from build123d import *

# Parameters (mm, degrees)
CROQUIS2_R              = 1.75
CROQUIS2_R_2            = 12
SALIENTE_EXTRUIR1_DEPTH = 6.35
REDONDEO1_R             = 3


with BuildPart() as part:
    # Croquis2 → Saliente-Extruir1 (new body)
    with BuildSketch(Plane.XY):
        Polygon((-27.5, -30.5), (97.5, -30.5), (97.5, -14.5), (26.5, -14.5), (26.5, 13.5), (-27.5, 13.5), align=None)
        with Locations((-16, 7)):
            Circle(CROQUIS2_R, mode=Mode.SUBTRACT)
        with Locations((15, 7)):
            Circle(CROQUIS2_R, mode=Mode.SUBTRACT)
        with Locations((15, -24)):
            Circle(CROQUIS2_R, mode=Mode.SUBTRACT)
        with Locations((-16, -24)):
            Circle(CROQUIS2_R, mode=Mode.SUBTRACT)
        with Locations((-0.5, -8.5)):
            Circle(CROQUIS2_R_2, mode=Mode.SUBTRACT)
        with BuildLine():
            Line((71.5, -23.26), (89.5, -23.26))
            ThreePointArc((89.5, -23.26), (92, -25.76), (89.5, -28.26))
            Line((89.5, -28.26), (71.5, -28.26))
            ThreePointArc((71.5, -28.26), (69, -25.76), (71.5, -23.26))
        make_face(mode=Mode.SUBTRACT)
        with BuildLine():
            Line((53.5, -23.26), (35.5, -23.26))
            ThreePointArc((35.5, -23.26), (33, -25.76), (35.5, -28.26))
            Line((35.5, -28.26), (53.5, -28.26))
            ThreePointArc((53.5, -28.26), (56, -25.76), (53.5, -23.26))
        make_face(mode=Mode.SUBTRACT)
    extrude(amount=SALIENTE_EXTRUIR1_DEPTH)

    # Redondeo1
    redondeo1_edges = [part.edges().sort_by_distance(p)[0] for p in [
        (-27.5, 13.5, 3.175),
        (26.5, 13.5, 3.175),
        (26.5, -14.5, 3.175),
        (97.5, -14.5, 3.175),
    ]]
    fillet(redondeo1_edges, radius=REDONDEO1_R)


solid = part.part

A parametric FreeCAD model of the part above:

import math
import FreeCAD as App
import Part
import Sketcher
from FreeCAD import Vector


def edges_at(feature, points):
    """Names of the edges that pass closest to the given points."""
    edges = feature.Shape.Edges
    near = lambda p: min(range(len(edges)), key=lambda i: edges[i].distToShape(Part.Vertex(*p))[0])
    return sorted({f"Edge{near(p) + 1}" for p in points})


def add_polygon(sketch, points):
    """Adds a closed chain of lines whose ends are joined by coincident constraints."""
    first, n = sketch.GeometryCount, len(points)
    for a, b in zip(points, points[1:] + points[:1]):
        sketch.addGeometry(Part.LineSegment(App.Vector(*a, 0), App.Vector(*b, 0)), False)
    for i in range(n):
        sketch.addConstraint(Sketcher.Constraint("Coincident", first + i, 2, first + (i + 1) % n, 1))

doc = App.newDocument("Part")
body = doc.addObject("PartDesign::Body", "Body")

# Sketch on XY plane
sketch1 = body.newObject("Sketcher::SketchObject", "Sketch")
sketch1.AttachmentSupport = (doc.getObject("XY_Plane"), [""])
sketch1.MapMode = "FlatFace"
add_polygon(sketch1, [(-27.5, -30.5), (97.5, -30.5), (97.5, -14.5), (26.5, -14.5), (26.5, 13.5), (-27.5, 13.5)])  # lines 0-5
sketch1.addGeometry(Part.Circle(Vector(-16, -24, 0), Vector(0, 0, 1), 1.8), False)  # 6
sketch1.addGeometry(Part.Circle(Vector(15, -24, 0), Vector(0, 0, 1), 1.8), False)  # 7
sketch1.addGeometry(Part.LineSegment(Vector(35.5, -23.3, 0), Vector(53.5, -23.3, 0)), False)  # 8
sketch1.addGeometry(Part.ArcOfCircle(Part.Circle(Vector(53.5, -25.8, 0), Vector(0, 0, 1), 2.5), math.radians(-90), math.radians(90)), False)  # 9
sketch1.addGeometry(Part.LineSegment(Vector(53.5, -28.3, 0), Vector(35.5, -28.3, 0)), False)  # 10
sketch1.addGeometry(Part.ArcOfCircle(Part.Circle(Vector(35.5, -25.8, 0), Vector(0, 0, 1), 2.5), math.radians(90), math.radians(270)), False)  # 11
sketch1.addGeometry(Part.ArcOfCircle(Part.Circle(Vector(71.5, -25.8, 0), Vector(0, 0, 1), 2.5), math.radians(90), math.radians(270)), False)  # 12
sketch1.addGeometry(Part.LineSegment(Vector(71.5, -23.3, 0), Vector(89.5, -23.3, 0)), False)  # 13
sketch1.addGeometry(Part.ArcOfCircle(Part.Circle(Vector(89.5, -25.8, 0), Vector(0, 0, 1), 2.5), math.radians(-90), math.radians(90)), False)  # 14
sketch1.addGeometry(Part.LineSegment(Vector(89.5, -28.3, 0), Vector(71.5, -28.3, 0)), False)  # 15
sketch1.addGeometry(Part.Circle(Vector(-0.5, -8.5, 0), Vector(0, 0, 1), 12), False)  # 16
sketch1.addGeometry(Part.Circle(Vector(-16, 7, 0), Vector(0, 0, 1), 1.8), False)  # 17
sketch1.addGeometry(Part.Circle(Vector(15, 7, 0), Vector(0, 0, 1), 1.8), False)  # 18
sketch1.addConstraint([
    Sketcher.Constraint("Tangent", 8, 2, 9, 2),
    Sketcher.Constraint("Tangent", 9, 1, 10, 1),
    Sketcher.Constraint("Tangent", 10, 2, 11, 2),
    Sketcher.Constraint("Tangent", 11, 1, 8, 1),
    Sketcher.Constraint("Tangent", 12, 1, 13, 1),
    Sketcher.Constraint("Tangent", 13, 2, 14, 2),
    Sketcher.Constraint("Tangent", 14, 1, 15, 1),
    Sketcher.Constraint("Tangent", 15, 2, 12, 2),
    Sketcher.Constraint("Horizontal", 0),
    Sketcher.Constraint("Vertical", 1),
    Sketcher.Constraint("Horizontal", 2),
    Sketcher.Constraint("Vertical", 3),
    Sketcher.Constraint("Horizontal", 4),
    Sketcher.Constraint("Vertical", 5),
    Sketcher.Constraint("Horizontal", 8),
    Sketcher.Constraint("Horizontal", 10),
    Sketcher.Constraint("Horizontal", 13),
    Sketcher.Constraint("Horizontal", 15),
    Sketcher.Constraint("Equal", 6, 7),
    Sketcher.Constraint("Equal", 11, 12),
    Sketcher.Constraint("Equal", 7, 17),
    Sketcher.Constraint("Equal", 17, 18),
    Sketcher.Constraint("Horizontal", 6, 3, 7, 3),
    Sketcher.Constraint("Horizontal", 11, 3, 12, 3),
    Sketcher.Constraint("Horizontal", 17, 3, 18, 3),
    Sketcher.Constraint("Vertical", 6, 3, 17, 3),
    Sketcher.Constraint("Vertical", 7, 3, 18, 3),
    Sketcher.Constraint("Equal", 10, 13),
    Sketcher.Constraint("Diameter", 16, 24.0),
    Sketcher.Constraint("Diameter", 6, 3.5),
    Sketcher.Constraint("Radius", 9, 2.5),
    Sketcher.Constraint("DistanceX", 0, 1, 0, 2, 125.0),
    Sketcher.Constraint("DistanceX", 2, 2, 2, 1, 71.0),
    Sketcher.Constraint("DistanceX", 8, 1, 8, 2, 18.0),
    Sketcher.Constraint("DistanceY", 1, 1, 1, 2, 16.0),
    Sketcher.Constraint("DistanceY", 3, 1, 3, 2, 28.0),
    Sketcher.Constraint("DistanceX", 6, 3, -1, 1, 16.0),
    Sketcher.Constraint("DistanceY", 6, 3, -1, 1, 24.0),
    Sketcher.Constraint("DistanceX", -1, 1, 7, 3, 15.0),
    Sketcher.Constraint("DistanceY", -1, 1, 17, 3, 7.0),
    Sketcher.Constraint("DistanceX", 9, 3, 12, 3, 18.0),
    Sketcher.Constraint("DistanceX", 16, 3, 11, 3, 36.0),
    Sketcher.Constraint("DistanceX", 14, 3, 0, 2, 8.0),
    Sketcher.Constraint("DistanceY", 2, 2, 16, 3, 6.0),
    Sketcher.Constraint("DistanceX", -1, 1, 9, 3, 53.5),
    Sketcher.Constraint("DistanceY", 16, 3, -1, 1, 8.5),
    Sketcher.Constraint("DistanceY", 9, 3, -1, 1, 25.76),
])
pad1 = body.newObject("PartDesign::Pad", "Pad")
pad1.Profile = sketch1
pad1.Length = 6.35
doc.recompute()

fillet = body.newObject("PartDesign::Fillet", "Fillet")
fillet.Base = (pad1, edges_at(pad1, [
    (-27.5, 13.5, 3.175),
    (26.5, 13.5, 3.175),
    (26.5, -14.5, 3.175),
    (97.5, -14.5, 3.175),
]))
fillet.Radius = 3

doc.recompute()
